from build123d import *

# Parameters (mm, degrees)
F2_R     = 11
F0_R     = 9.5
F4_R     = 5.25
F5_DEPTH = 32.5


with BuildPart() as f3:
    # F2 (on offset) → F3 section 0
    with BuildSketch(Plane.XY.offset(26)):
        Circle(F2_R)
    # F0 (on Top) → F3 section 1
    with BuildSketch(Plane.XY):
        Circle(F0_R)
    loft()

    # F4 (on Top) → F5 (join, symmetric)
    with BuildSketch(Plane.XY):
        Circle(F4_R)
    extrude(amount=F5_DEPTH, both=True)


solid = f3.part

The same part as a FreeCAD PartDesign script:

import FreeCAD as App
import Part
import Sketcher

doc = App.newDocument("Part")
body = doc.addObject("PartDesign::Body", "Body")

sketch1 = body.newObject("Sketcher::SketchObject", "Sketch")
sketch1.AttachmentSupport = (doc.getObject("XY_Plane"), [""])
sketch1.MapMode = "FlatFace"
sketch1.AttachmentOffset = App.Placement(App.Vector(0, 0, 26), App.Rotation())
sketch1.addGeometry(Part.Circle(App.Vector(0, 0, 0), App.Vector(0, 0, 1), 11), False)
sketch1.addConstraint(Sketcher.Constraint("Coincident", 0, 3, -1, 1))
sketch1.addConstraint(Sketcher.Constraint("Diameter", 0, 22.0))

sketch2 = body.newObject("Sketcher::SketchObject", "Sketch001")
sketch2.AttachmentSupport = (doc.getObject("XY_Plane"), [""])
sketch2.MapMode = "FlatFace"
sketch2.addGeometry(Part.Circle(App.Vector(0, 0, 0), App.Vector(0, 0, 1), 10), False)
sketch2.addConstraint(Sketcher.Constraint("Coincident", 0, 3, -1, 1))
sketch2.addConstraint(Sketcher.Constraint("Diameter", 0, 19.0))

additiveloft = body.newObject("PartDesign::AdditiveLoft", "AdditiveLoft")
additiveloft.Profile = sketch1
additiveloft.Sections = [sketch2]

sketch3 = body.newObject("Sketcher::SketchObject", "Sketch002")
sketch3.AttachmentSupport = (doc.getObject("XY_Plane"), [""])
sketch3.MapMode = "FlatFace"
sketch3.addGeometry(Part.Circle(App.Vector(0, 0, 0), App.Vector(0, 0, 1), 5), False)
sketch3.addConstraint(Sketcher.Constraint("Coincident", 0, 3, -1, 1))
sketch3.addConstraint(Sketcher.Constraint("Diameter", 0, 10.5))
pad1 = body.newObject("PartDesign::Pad", "Pad")
pad1.Profile = sketch3
pad1.Length = 65
pad1.Midplane = True

doc.recompute()
